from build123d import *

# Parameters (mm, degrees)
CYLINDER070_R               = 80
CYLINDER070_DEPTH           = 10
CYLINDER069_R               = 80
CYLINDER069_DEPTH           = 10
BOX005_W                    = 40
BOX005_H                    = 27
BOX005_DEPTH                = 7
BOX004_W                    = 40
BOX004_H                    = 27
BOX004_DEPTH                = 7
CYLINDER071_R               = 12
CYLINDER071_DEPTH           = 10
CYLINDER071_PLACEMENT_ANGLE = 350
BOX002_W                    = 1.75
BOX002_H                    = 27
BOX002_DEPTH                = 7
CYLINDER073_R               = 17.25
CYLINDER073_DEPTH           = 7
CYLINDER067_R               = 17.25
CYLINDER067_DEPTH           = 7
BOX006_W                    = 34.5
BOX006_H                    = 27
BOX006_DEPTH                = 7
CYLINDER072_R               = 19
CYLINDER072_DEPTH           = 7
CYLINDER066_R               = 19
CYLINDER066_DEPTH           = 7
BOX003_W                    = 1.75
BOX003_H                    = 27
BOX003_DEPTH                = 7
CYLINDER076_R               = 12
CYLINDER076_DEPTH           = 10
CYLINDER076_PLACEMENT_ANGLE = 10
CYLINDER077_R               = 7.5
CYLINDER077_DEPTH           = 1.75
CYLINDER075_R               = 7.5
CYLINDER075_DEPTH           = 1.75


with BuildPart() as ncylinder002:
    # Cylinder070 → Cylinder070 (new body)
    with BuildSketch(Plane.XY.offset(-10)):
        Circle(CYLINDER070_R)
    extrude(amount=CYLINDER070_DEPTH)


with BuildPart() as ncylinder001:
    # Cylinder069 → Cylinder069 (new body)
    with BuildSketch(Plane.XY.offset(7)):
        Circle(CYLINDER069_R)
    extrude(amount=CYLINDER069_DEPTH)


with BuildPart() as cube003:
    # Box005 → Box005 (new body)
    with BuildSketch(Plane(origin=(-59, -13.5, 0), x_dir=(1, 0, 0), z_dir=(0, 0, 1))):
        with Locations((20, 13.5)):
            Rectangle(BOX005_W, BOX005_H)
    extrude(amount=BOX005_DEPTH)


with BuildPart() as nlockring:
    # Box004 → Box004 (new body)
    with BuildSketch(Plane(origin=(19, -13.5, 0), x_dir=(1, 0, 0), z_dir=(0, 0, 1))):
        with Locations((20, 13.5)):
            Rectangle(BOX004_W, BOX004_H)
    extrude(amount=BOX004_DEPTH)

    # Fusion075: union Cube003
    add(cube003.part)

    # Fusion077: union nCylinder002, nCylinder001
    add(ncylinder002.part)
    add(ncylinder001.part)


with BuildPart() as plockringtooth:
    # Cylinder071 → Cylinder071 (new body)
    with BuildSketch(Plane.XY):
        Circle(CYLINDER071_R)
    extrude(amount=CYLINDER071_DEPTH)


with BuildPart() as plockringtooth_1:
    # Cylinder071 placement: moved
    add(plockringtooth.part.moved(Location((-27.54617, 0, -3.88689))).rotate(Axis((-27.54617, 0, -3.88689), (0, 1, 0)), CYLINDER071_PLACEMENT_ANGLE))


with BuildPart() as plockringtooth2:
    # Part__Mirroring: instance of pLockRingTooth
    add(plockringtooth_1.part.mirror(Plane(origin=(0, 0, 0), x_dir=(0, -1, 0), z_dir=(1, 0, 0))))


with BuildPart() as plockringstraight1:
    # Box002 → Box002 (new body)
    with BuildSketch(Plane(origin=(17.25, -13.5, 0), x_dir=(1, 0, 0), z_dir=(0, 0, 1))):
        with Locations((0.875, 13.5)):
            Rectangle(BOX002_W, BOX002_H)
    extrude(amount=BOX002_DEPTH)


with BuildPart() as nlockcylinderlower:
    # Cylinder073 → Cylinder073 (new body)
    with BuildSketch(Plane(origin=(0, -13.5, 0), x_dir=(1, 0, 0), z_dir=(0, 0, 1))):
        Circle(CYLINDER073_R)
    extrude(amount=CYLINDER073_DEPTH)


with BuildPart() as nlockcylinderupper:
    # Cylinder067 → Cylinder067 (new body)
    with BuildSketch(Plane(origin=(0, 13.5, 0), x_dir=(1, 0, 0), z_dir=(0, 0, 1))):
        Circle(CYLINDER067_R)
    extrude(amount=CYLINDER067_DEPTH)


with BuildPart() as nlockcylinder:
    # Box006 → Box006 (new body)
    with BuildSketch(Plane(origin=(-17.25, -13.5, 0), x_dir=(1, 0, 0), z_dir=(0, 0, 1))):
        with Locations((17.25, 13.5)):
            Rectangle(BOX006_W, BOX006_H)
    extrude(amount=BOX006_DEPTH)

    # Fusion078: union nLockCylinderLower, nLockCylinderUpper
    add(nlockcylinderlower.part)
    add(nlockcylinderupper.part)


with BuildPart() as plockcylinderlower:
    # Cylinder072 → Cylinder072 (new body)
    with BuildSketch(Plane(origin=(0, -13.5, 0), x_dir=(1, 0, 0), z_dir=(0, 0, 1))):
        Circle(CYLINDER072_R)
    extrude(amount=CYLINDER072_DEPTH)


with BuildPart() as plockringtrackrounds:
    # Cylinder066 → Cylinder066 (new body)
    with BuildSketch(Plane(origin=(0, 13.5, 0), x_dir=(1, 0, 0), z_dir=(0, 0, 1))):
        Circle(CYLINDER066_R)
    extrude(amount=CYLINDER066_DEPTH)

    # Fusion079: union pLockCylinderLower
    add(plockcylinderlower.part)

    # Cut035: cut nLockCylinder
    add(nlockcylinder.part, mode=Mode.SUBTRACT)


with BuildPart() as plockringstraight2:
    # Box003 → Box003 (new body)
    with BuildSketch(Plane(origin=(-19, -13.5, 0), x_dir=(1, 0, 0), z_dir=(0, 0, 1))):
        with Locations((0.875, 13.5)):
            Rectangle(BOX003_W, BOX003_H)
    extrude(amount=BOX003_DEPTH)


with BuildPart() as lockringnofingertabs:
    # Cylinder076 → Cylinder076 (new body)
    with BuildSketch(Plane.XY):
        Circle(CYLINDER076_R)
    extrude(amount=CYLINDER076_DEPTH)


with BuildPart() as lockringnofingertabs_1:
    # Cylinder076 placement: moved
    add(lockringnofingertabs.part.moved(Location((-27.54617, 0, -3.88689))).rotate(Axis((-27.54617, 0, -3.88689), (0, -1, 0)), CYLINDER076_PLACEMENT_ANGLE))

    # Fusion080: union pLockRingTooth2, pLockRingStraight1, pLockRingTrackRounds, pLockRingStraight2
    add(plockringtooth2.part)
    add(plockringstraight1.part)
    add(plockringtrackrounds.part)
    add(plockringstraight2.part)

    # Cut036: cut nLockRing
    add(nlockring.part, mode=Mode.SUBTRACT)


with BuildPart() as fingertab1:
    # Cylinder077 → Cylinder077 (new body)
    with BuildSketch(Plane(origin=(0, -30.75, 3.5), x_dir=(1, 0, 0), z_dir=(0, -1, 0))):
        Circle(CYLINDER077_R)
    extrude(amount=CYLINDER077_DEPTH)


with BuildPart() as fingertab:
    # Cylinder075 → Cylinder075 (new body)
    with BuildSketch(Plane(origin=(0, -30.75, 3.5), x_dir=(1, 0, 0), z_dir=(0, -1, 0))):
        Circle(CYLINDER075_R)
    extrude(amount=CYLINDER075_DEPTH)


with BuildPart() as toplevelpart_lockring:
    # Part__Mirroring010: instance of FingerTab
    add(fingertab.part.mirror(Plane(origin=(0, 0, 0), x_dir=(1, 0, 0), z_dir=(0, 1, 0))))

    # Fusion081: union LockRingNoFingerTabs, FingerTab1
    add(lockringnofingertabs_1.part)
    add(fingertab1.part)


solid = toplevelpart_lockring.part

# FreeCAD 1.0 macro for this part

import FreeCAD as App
import Part
import Sketcher

doc = App.newDocument("Part")
params = doc.addObject("Spreadsheet::Sheet", "Params")
for row, (alias, value) in enumerate([
    ("sketch1_diameter", "160 mm"),
    ("pad1_length", "10 mm"),
    ("sketch2_diameter", "160 mm"),
    ("pad2_length", "10 mm"),
    ("sketch3_width", "40 mm"),
    ("sketch3_height", "27 mm"),
    ("pad3_length", "7 mm"),
    ("sketch4_width", "40 mm"),
    ("sketch4_height", "27 mm"),
    ("pad4_length", "7 mm"),
    ("sketch5_diameter", "24 mm"),
    ("pad5_length", "10 mm"),
    ("sketch6_height", "27 mm"),
    ("sketch6_width", "1.75 mm"),
    ("pad6_length", "7 mm"),
    ("sketch7_diameter", "34.5 mm"),
    ("pad7_length", "7 mm"),
    ("sketch8_diameter", "34.5 mm"),
    ("pad8_length", "7 mm"),
    ("sketch9_height", "27 mm"),
    ("sketch9_width", "34.5 mm"),
    ("pad9_length", "7 mm"),
    ("sketch10_diameter", "38 mm"),
    ("pad10_length", "7 mm"),
    ("sketch11_diameter", "38 mm"),
    ("pad11_length", "7 mm"),
    ("sketch12_height", "27 mm"),
    ("sketch12_width", "1.75 mm"),
    ("pad12_length", "7 mm"),
    ("sketch13_diameter", "24 mm"),
    ("pad13_length", "10 mm"),
    ("sketch14_diameter", "15 mm"),
    ("pad14_length", "1.75 mm"),
    ("sketch15_diameter", "15 mm"),
    ("pad15_length", "1.75 mm"),
], start=1):
    params.set(f"A{row}", alias)
    params.set(f"B{row}", "=" + value)
    params.setAlias(f"B{row}", alias)

body = doc.addObject("PartDesign::Body", "Body")

# Sketch on XY plane
sketch1 = body.newObject("Sketcher::SketchObject", "Sketch")
sketch1.AttachmentSupport = (doc.getObject("XY_Plane"), [""])
sketch1.MapMode = "FlatFace"
sketch1.AttachmentOffset = App.Placement(App.Vector(0, 0, -10), App.Rotation())
sketch1.addGeometry(Part.Circle(App.Vector(0, 0, 0), App.Vector(0, 0, 1), 80), False)
sketch1.addConstraint([
    Sketcher.Constraint("Coincident", 0, 3, -1, 1),
    Sketcher.Constraint("Diameter", 0, 160.0),
])
sketch1.setExpression("Constraints[1]", "Params.sketch1_diameter")
pad1 = body.newObject("PartDesign::Pad", "Pad")
pad1.Profile = sketch1
pad1.setExpression("Length", "Params.pad1_length")
body2 = doc.addObject("PartDesign::Body", "Body001")

# Sketch on XY plane
sketch2 = body2.newObject("Sketcher::SketchObject", "Sketch001")
sketch2.AttachmentSupport = (doc.getObject("XY_Plane001"), [""])
sketch2.MapMode = "FlatFace"
sketch2.AttachmentOffset = App.Placement(App.Vector(0, 0, 7), App.Rotation())
sketch2.addGeometry(Part.Circle(App.Vector(0, 0, 0), App.Vector(0, 0, 1), 80), False)
sketch2.addConstraint([
    Sketcher.Constraint("Coincident", 0, 3, -1, 1),
    Sketcher.Constraint("Diameter", 0, 160.0),
])
sketch2.setExpression("Constraints[1]", "Params.sketch2_diameter")
pad2 = body2.newObject("PartDesign::Pad", "Pad001")
pad2.Profile = sketch2
pad2.setExpression("Length", "Params.pad2_length")
body3 = doc.addObject("PartDesign::Body", "Body002")

# Sketch on XY plane
sketch3 = body3.newObject("Sketcher::SketchObject", "Sketch002")
sketch3.AttachmentSupport = (doc.getObject("XY_Plane002"), [""])
sketch3.MapMode = "FlatFace"
sketch3.addGeometry([
    Part.LineSegment(App.Vector(-59, 14, 0), App.Vector(-59, -14, 0)),
    Part.LineSegment(App.Vector(-59, -14, 0), App.Vector(-19, -14, 0)),
    Part.LineSegment(App.Vector(-19, -14, 0), App.Vector(-19, 14, 0)),
    Part.LineSegment(App.Vector(-19, 14, 0), App.Vector(-59, 14, 0)),
], False)
sketch3.addConstraint([
    Sketcher.Constraint("Coincident", 0, 2, 1, 1),
    Sketcher.Constraint("Coincident", 1, 2, 2, 1),
    Sketcher.Constraint("Coincident", 2, 2, 3, 1),
    Sketcher.Constraint("Coincident", 3, 2, 0, 1),
    Sketcher.Constraint("Vertical", 0),
    Sketcher.Constraint("Horizontal", 1),
    Sketcher.Constraint("Vertical", 2),
    Sketcher.Constraint("Horizontal", 3),
    Sketcher.Constraint("DistanceX", 1, 1, 1, 2, 40.0),
    Sketcher.Constraint("DistanceY", 0, 2, 0, 1, 27.0),
    Sketcher.Constraint("DistanceX", 0, 2, -1, 1, 59.0),
    Sketcher.Constraint("DistanceY", 0, 2, -1, 1, 13.5),
])
sketch3.setExpression("Constraints[8]", "Params.sketch3_width")
sketch3.setExpression("Constraints[9]", "Params.sketch3_height")
pad3 = body3.newObject("PartDesign::Pad", "Pad002")
pad3.Profile = sketch3
pad3.setExpression("Length", "Params.pad3_length")
body4 = doc.addObject("PartDesign::Body", "Body003")
body4.AllowCompound = True

# Sketch on XY plane
sketch4 = body4.newObject("Sketcher::SketchObject", "Sketch003")
sketch4.AttachmentSupport = (doc.getObject("XY_Plane003"), [""])
sketch4.MapMode = "FlatFace"
sketch4.addGeometry([
    Part.LineSegment(App.Vector(19, 14, 0), App.Vector(19, -14, 0)),
    Part.LineSegment(App.Vector(19, -14, 0), App.Vector(59, -14, 0)),
    Part.LineSegment(App.Vector(59, -14, 0), App.Vector(59, 14, 0)),
    Part.LineSegment(App.Vector(59, 14, 0), App.Vector(19, 14, 0)),
], False)
sketch4.addConstraint([
    Sketcher.Constraint("Coincident", 0, 2, 1, 1),
    Sketcher.Constraint("Coincident", 1, 2, 2, 1),
    Sketcher.Constraint("Coincident", 2, 2, 3, 1),
    Sketcher.Constraint("Coincident", 3, 2, 0, 1),
    Sketcher.Constraint("Vertical", 0),
    Sketcher.Constraint("Horizontal", 1),
    Sketcher.Constraint("Vertical", 2),
    Sketcher.Constraint("Horizontal", 3),
    Sketcher.Constraint("DistanceX", 1, 1, 1, 2, 40.0),
    Sketcher.Constraint("DistanceY", 0, 2, 0, 1, 27.0),
    Sketcher.Constraint("DistanceX", -1, 1, 0, 2, 19.0),
    Sketcher.Constraint("DistanceY", 0, 2, -1, 1, 13.5),
])
sketch4.setExpression("Constraints[8]", "Params.sketch4_width")
sketch4.setExpression("Constraints[9]", "Params.sketch4_height")
pad4 = body4.newObject("PartDesign::Pad", "Pad003")
pad4.Profile = sketch4
pad4.setExpression("Length", "Params.pad4_length")
doc.recompute()

boolean = body4.newObject("PartDesign::Boolean", "Boolean")
boolean.Type = "Fuse"
boolean.addObjects([body3])
doc.recompute()

boolean2 = body4.newObject("PartDesign::Boolean", "Boolean001")
boolean2.Type = "Fuse"
boolean2.addObjects([body])
doc.recompute()

boolean3 = body4.newObject("PartDesign::Boolean", "Boolean002")
boolean3.Type = "Fuse"
boolean3.addObjects([body2])
body5 = doc.addObject("PartDesign::Body", "Body004")

# Sketch on XY plane
sketch5 = body5.newObject("Sketcher::SketchObject", "Sketch004")
sketch5.AttachmentSupport = (doc.getObject("XY_Plane004"), [""])
sketch5.MapMode = "FlatFace"
sketch5.addGeometry(Part.Circle(App.Vector(0, 0, 0), App.Vector(0, 0, 1), 12), False)
sketch5.addConstraint([
    Sketcher.Constraint("Coincident", 0, 3, -1, 1),
    Sketcher.Constraint("Diameter", 0, 24.0),
])
sketch5.setExpression("Constraints[1]", "Params.sketch5_diameter")
pad5 = body5.newObject("PartDesign::Pad", "Pad004")
pad5.Profile = sketch5
pad5.setExpression("Length", "Params.pad5_length")
body6 = doc.addObject("PartDesign::Body", "Body005")
doc.recompute()

body5.Placement = App.Placement(App.Vector(-27.54617, 0, -3.88689), App.Rotation(App.Vector(0, 1, 0), 350))
boolean4 = body6.newObject("PartDesign::Boolean", "Boolean003")
boolean4.Type = "Fuse"
boolean4.addObjects([body5])
body7 = doc.addObject("PartDesign::Body", "Body006")
doc.recompute()

mirroring = doc.addObject("Part::Mirroring", "Mirroring")
mirroring.Source = body6
mirroring.Base = App.Vector(0, 0, 0)
mirroring.Normal = App.Vector(1, 0, 0)
body7.BaseFeature = mirroring
doc.recompute()
body8 = doc.addObject("PartDesign::Body", "Body007")

# Sketch on XY plane
sketch6 = body8.newObject("Sketcher::SketchObject", "Sketch005")
sketch6.AttachmentSupport = (doc.getObject("XY_Plane007"), [""])
sketch6.MapMode = "FlatFace"
sketch6.addGeometry([
    Part.LineSegment(App.Vector(17.2, 13.5, 0), App.Vector(17.2, -13.5, 0)),
    Part.LineSegment(App.Vector(17.2, -13.5, 0), App.Vector(19, -13.5, 0)),
    Part.LineSegment(App.Vector(19, -13.5, 0), App.Vector(19, 13.5, 0)),
    Part.LineSegment(App.Vector(19, 13.5, 0), App.Vector(17.2, 13.5, 0)),
], False)
sketch6.addConstraint([
    Sketcher.Constraint("Coincident", 0, 2, 1, 1),
    Sketcher.Constraint("Coincident", 1, 2, 2, 1),
    Sketcher.Constraint("Coincident", 2, 2, 3, 1),
    Sketcher.Constraint("Coincident", 3, 2, 0, 1),
    Sketcher.Constraint("Vertical", 0),
    Sketcher.Constraint("Horizontal", 1),
    Sketcher.Constraint("Vertical", 2),
    Sketcher.Constraint("Horizontal", 3),
    Sketcher.Constraint("DistanceY", 0, 2, 0, 1, 27.0),
    Sketcher.Constraint("DistanceX", -1, 1, 1, 2, 19.0),
    Sketcher.Constraint("DistanceX", 1, 1, 1, 2, 1.75),
    Sketcher.Constraint("DistanceY", 0, 2, -1, 1, 13.5),
])
sketch6.setExpression("Constraints[8]", "Params.sketch6_height")
sketch6.setExpression("Constraints[10]", "Params.sketch6_width")
pad6 = body8.newObject("PartDesign::Pad", "Pad005")
pad6.Profile = sketch6
pad6.setExpression("Length", "Params.pad6_length")
body9 = doc.addObject("PartDesign::Body", "Body008")

# Sketch on XY plane
sketch7 = body9.newObject("Sketcher::SketchObject", "Sketch006")
sketch7.AttachmentSupport = (doc.getObject("XY_Plane008"), [""])
sketch7.MapMode = "FlatFace"
sketch7.addGeometry(Part.Circle(App.Vector(0, -14, 0), App.Vector(0, 0, 1), 17), False)
sketch7.addConstraint([
    Sketcher.Constraint("PointOnObject", 0, 3, -2),
    Sketcher.Constraint("Diameter", 0, 34.5),
    Sketcher.Constraint("DistanceY", 0, 3, -1, 1, 13.5),
])
sketch7.setExpression("Constraints[1]", "Params.sketch7_diameter")
pad7 = body9.newObject("PartDesign::Pad", "Pad006")
pad7.Profile = sketch7
pad7.setExpression("Length", "Params.pad7_length")
body10 = doc.addObject("PartDesign::Body", "Body009")

# Sketch on XY plane
sketch8 = body10.newObject("Sketcher::SketchObject", "Sketch007")
sketch8.AttachmentSupport = (doc.getObject("XY_Plane009"), [""])
sketch8.MapMode = "FlatFace"
sketch8.addGeometry(Part.Circle(App.Vector(0, 14, 0), App.Vector(0, 0, 1), 17), False)
sketch8.addConstraint([
    Sketcher.Constraint("PointOnObject", 0, 3, -2),
    Sketcher.Constraint("Diameter", 0, 34.5),
    Sketcher.Constraint("DistanceY", -1, 1, 0, 3, 13.5),
])
sketch8.setExpression("Constraints[1]", "Params.sketch8_diameter")
pad8 = body10.newObject("PartDesign::Pad", "Pad007")
pad8.Profile = sketch8
pad8.setExpression("Length", "Params.pad8_length")
body11 = doc.addObject("PartDesign::Body", "Body010")

# Sketch on XY plane
sketch9 = body11.newObject("Sketcher::SketchObject", "Sketch008")
sketch9.AttachmentSupport = (doc.getObject("XY_Plane010"), [""])
sketch9.MapMode = "FlatFace"
sketch9.addGeometry([
    Part.LineSegment(App.Vector(-17, 14, 0), App.Vector(-17, -14, 0)),
    Part.LineSegment(App.Vector(-17, -14, 0), App.Vector(17, -14, 0)),
    Part.LineSegment(App.Vector(17, -14, 0), App.Vector(17, 14, 0)),
    Part.LineSegment(App.Vector(17, 14, 0), App.Vector(-17, 14, 0)),
], False)
sketch9.addConstraint([
    Sketcher.Constraint("Coincident", 0, 2, 1, 1),
    Sketcher.Constraint("Coincident", 1, 2, 2, 1),
    Sketcher.Constraint("Coincident", 2, 2, 3, 1),
    Sketcher.Constraint("Coincident", 3, 2, 0, 1),
    Sketcher.Constraint("Vertical", 0),
    Sketcher.Constraint("Horizontal", 1),
    Sketcher.Constraint("Vertical", 2),
    Sketcher.Constraint("Horizontal", 3),
    Sketcher.Constraint("Symmetric", 0, 2, 2, 2, -1, 1),
    Sketcher.Constraint("DistanceY", 0, 2, 0, 1, 27.0),
    Sketcher.Constraint("DistanceX", 1, 1, 1, 2, 34.5),
])
sketch9.setExpression("Constraints[9]", "Params.sketch9_height")
sketch9.setExpression("Constraints[10]", "Params.sketch9_width")
pad9 = body11.newObject("PartDesign::Pad", "Pad008")
pad9.Profile = sketch9
pad9.setExpression("Length", "Params.pad9_length")
doc.recompute()

boolean5 = body11.newObject("PartDesign::Boolean", "Boolean004")
boolean5.Type = "Fuse"
boolean5.addObjects([body9])
doc.recompute()

boolean6 = body11.newObject("PartDesign::Boolean", "Boolean005")
boolean6.Type = "Fuse"
boolean6.addObjects([body10])
body12 = doc.addObject("PartDesign::Body", "Body011")

# Sketch on XY plane
sketch10 = body12.newObject("Sketcher::SketchObject", "Sketch009")
sketch10.AttachmentSupport = (doc.getObject("XY_Plane011"), [""])
sketch10.MapMode = "FlatFace"
sketch10.addGeometry(Part.Circle(App.Vector(0, -14, 0), App.Vector(0, 0, 1), 19), False)
sketch10.addConstraint([
    Sketcher.Constraint("PointOnObject", 0, 3, -2),
    Sketcher.Constraint("Diameter", 0, 38.0),
    Sketcher.Constraint("DistanceY", 0, 3, -1, 1, 13.5),
])
sketch10.setExpression("Constraints[1]", "Params.sketch10_diameter")
pad10 = body12.newObject("PartDesign::Pad", "Pad009")
pad10.Profile = sketch10
pad10.setExpression("Length", "Params.pad10_length")
body13 = doc.addObject("PartDesign::Body", "Body012")
body13.AllowCompound = True

# Sketch on XY plane
sketch11 = body13.newObject("Sketcher::SketchObject", "Sketch010")
sketch11.AttachmentSupport = (doc.getObject("XY_Plane012"), [""])
sketch11.MapMode = "FlatFace"
sketch11.addGeometry(Part.Circle(App.Vector(0, 14, 0), App.Vector(0, 0, 1), 19), False)
sketch11.addConstraint([
    Sketcher.Constraint("PointOnObject", 0, 3, -2),
    Sketcher.Constraint("Diameter", 0, 38.0),
    Sketcher.Constraint("DistanceY", -1, 1, 0, 3, 13.5),
])
sketch11.setExpression("Constraints[1]", "Params.sketch11_diameter")
pad11 = body13.newObject("PartDesign::Pad", "Pad010")
pad11.Profile = sketch11
pad11.setExpression("Length", "Params.pad11_length")
doc.recompute()

boolean7 = body13.newObject("PartDesign::Boolean", "Boolean006")
boolean7.Type = "Fuse"
boolean7.addObjects([body12])
doc.recompute()

boolean8 = body13.newObject("PartDesign::Boolean", "Boolean007")
boolean8.Type = "Cut"
boolean8.addObjects([body11])
body14 = doc.addObject("PartDesign::Body", "Body013")

# Sketch on XY plane
sketch12 = body14.newObject("Sketcher::SketchObject", "Sketch011")
sketch12.AttachmentSupport = (doc.getObject("XY_Plane013"), [""])
sketch12.MapMode = "FlatFace"
sketch12.addGeometry([
    Part.LineSegment(App.Vector(-19, 13.5, 0), App.Vector(-19, -13.5, 0)),
    Part.LineSegment(App.Vector(-19, -13.5, 0), App.Vector(-17.2, -13.5, 0)),
    Part.LineSegment(App.Vector(-17.2, -13.5, 0), App.Vector(-17.2, 13.5, 0)),
    Part.LineSegment(App.Vector(-17.2, 13.5, 0), App.Vector(-19, 13.5, 0)),
], False)
sketch12.addConstraint([
    Sketcher.Constraint("Coincident", 0, 2, 1, 1),
    Sketcher.Constraint("Coincident", 1, 2, 2, 1),
    Sketcher.Constraint("Coincident", 2, 2, 3, 1),
    Sketcher.Constraint("Coincident", 3, 2, 0, 1),
    Sketcher.Constraint("Vertical", 0),
    Sketcher.Constraint("Horizontal", 1),
    Sketcher.Constraint("Vertical", 2),
    Sketcher.Constraint("Horizontal", 3),
    Sketcher.Constraint("DistanceY", 0, 2, 0, 1, 27.0),
    Sketcher.Constraint("DistanceX", 0, 2, -1, 1, 19.0),
    Sketcher.Constraint("DistanceX", 1, 1, 1, 2, 1.75),
    Sketcher.Constraint("DistanceY", 0, 2, -1, 1, 13.5),
])
sketch12.setExpression("Constraints[8]", "Params.sketch12_height")
sketch12.setExpression("Constraints[10]", "Params.sketch12_width")
pad12 = body14.newObject("PartDesign::Pad", "Pad011")
pad12.Profile = sketch12
pad12.setExpression("Length", "Params.pad12_length")
body15 = doc.addObject("PartDesign::Body", "Body014")

# Sketch on XY plane
sketch13 = body15.newObject("Sketcher::SketchObject", "Sketch012")
sketch13.AttachmentSupport = (doc.getObject("XY_Plane014"), [""])
sketch13.MapMode = "FlatFace"
sketch13.addGeometry(Part.Circle(App.Vector(0, 0, 0), App.Vector(0, 0, 1), 12), False)
sketch13.addConstraint([
    Sketcher.Constraint("Coincident", 0, 3, -1, 1),
    Sketcher.Constraint("Diameter", 0, 24.0),
])
sketch13.setExpression("Constraints[1]", "Params.sketch13_diameter")
pad13 = body15.newObject("PartDesign::Pad", "Pad012")
pad13.Profile = sketch13
pad13.setExpression("Length", "Params.pad13_length")
body16 = doc.addObject("PartDesign::Body", "Body015")
body16.AllowCompound = True
doc.recompute()

body15.Placement = App.Placement(App.Vector(-27.54617, 0, -3.88689), App.Rotation(App.Vector(0, -1, 0), 10))
boolean9 = body16.newObject("PartDesign::Boolean", "Boolean008")
boolean9.Type = "Fuse"
boolean9.addObjects([body15])
doc.recompute()

boolean10 = body16.newObject("PartDesign::Boolean", "Boolean009")
boolean10.Type = "Fuse"
boolean10.addObjects([body7])
doc.recompute()

boolean11 = body16.newObject("PartDesign::Boolean", "Boolean010")
boolean11.Type = "Fuse"
boolean11.addObjects([body8])
doc.recompute()

boolean12 = body16.newObject("PartDesign::Boolean", "Boolean011")
boolean12.Type = "Fuse"
boolean12.addObjects([body13])
doc.recompute()

boolean13 = body16.newObject("PartDesign::Boolean", "Boolean012")
boolean13.Type = "Fuse"
boolean13.addObjects([body14])
doc.recompute()

boolean14 = body16.newObject("PartDesign::Boolean", "Boolean013")
boolean14.Type = "Cut"
boolean14.addObjects([body4])
body17 = doc.addObject("PartDesign::Body", "Body016")

# Sketch on XZ plane
sketch14 = body17.newObject("Sketcher::SketchObject", "Sketch013")
sketch14.AttachmentSupport = (doc.getObject("XZ_Plane016"), [""])
sketch14.MapMode = "FlatFace"
sketch14.AttachmentOffset = App.Placement(App.Vector(0, 0, 30.75), App.Rotation())
sketch14.addGeometry(Part.Circle(App.Vector(0, 4, 0), App.Vector(0, 0, 1), 8), False)
sketch14.addConstraint([
    Sketcher.Constraint("PointOnObject", 0, 3, -2),
    Sketcher.Constraint("Diameter", 0, 15.0),
    Sketcher.Constraint("DistanceY", -1, 1, 0, 3, 3.5),
])
sketch14.setExpression("Constraints[1]", "Params.sketch14_diameter")
pad14 = body17.newObject("PartDesign::Pad", "Pad013")
pad14.Profile = sketch14
pad14.setExpression("Length", "Params.pad14_length")
body18 = doc.addObject("PartDesign::Body", "Body017")

# Sketch on XZ plane
sketch15 = body18.newObject("Sketcher::SketchObject", "Sketch014")
sketch15.AttachmentSupport = (doc.getObject("XZ_Plane017"), [""])
sketch15.MapMode = "FlatFace"
sketch15.AttachmentOffset = App.Placement(App.Vector(0, 0, 30.75), App.Rotation())
sketch15.addGeometry(Part.Circle(App.Vector(0, 4, 0), App.Vector(0, 0, 1), 8), False)
sketch15.addConstraint([
    Sketcher.Constraint("PointOnObject", 0, 3, -2),
    Sketcher.Constraint("Diameter", 0, 15.0),
    Sketcher.Constraint("DistanceY", -1, 1, 0, 3, 3.5),
])
sketch15.setExpression("Constraints[1]", "Params.sketch15_diameter")
pad15 = body18.newObject("PartDesign::Pad", "Pad014")
pad15.Profile = sketch15
pad15.setExpression("Length", "Params.pad15_length")
body19 = doc.addObject("PartDesign::Body", "Body018")
doc.recompute()

mirroring2 = doc.addObject("Part::Mirroring", "Mirroring001")
mirroring2.Source = body18
mirroring2.Base = App.Vector(0, 0, 0)
mirroring2.Normal = App.Vector(0, 1, 0)
body19.BaseFeature = mirroring2
doc.recompute()

boolean15 = body19.newObject("PartDesign::Boolean", "Boolean014")
boolean15.Type = "Fuse"
boolean15.addObjects([body16])
doc.recompute()

boolean16 = body19.newObject("PartDesign::Boolean", "Boolean015")
boolean16.Type = "Fuse"
boolean16.addObjects([body17])
body18.Visibility = False
mirroring.Visibility = False
mirroring2.Visibility = False

doc.recompute()
